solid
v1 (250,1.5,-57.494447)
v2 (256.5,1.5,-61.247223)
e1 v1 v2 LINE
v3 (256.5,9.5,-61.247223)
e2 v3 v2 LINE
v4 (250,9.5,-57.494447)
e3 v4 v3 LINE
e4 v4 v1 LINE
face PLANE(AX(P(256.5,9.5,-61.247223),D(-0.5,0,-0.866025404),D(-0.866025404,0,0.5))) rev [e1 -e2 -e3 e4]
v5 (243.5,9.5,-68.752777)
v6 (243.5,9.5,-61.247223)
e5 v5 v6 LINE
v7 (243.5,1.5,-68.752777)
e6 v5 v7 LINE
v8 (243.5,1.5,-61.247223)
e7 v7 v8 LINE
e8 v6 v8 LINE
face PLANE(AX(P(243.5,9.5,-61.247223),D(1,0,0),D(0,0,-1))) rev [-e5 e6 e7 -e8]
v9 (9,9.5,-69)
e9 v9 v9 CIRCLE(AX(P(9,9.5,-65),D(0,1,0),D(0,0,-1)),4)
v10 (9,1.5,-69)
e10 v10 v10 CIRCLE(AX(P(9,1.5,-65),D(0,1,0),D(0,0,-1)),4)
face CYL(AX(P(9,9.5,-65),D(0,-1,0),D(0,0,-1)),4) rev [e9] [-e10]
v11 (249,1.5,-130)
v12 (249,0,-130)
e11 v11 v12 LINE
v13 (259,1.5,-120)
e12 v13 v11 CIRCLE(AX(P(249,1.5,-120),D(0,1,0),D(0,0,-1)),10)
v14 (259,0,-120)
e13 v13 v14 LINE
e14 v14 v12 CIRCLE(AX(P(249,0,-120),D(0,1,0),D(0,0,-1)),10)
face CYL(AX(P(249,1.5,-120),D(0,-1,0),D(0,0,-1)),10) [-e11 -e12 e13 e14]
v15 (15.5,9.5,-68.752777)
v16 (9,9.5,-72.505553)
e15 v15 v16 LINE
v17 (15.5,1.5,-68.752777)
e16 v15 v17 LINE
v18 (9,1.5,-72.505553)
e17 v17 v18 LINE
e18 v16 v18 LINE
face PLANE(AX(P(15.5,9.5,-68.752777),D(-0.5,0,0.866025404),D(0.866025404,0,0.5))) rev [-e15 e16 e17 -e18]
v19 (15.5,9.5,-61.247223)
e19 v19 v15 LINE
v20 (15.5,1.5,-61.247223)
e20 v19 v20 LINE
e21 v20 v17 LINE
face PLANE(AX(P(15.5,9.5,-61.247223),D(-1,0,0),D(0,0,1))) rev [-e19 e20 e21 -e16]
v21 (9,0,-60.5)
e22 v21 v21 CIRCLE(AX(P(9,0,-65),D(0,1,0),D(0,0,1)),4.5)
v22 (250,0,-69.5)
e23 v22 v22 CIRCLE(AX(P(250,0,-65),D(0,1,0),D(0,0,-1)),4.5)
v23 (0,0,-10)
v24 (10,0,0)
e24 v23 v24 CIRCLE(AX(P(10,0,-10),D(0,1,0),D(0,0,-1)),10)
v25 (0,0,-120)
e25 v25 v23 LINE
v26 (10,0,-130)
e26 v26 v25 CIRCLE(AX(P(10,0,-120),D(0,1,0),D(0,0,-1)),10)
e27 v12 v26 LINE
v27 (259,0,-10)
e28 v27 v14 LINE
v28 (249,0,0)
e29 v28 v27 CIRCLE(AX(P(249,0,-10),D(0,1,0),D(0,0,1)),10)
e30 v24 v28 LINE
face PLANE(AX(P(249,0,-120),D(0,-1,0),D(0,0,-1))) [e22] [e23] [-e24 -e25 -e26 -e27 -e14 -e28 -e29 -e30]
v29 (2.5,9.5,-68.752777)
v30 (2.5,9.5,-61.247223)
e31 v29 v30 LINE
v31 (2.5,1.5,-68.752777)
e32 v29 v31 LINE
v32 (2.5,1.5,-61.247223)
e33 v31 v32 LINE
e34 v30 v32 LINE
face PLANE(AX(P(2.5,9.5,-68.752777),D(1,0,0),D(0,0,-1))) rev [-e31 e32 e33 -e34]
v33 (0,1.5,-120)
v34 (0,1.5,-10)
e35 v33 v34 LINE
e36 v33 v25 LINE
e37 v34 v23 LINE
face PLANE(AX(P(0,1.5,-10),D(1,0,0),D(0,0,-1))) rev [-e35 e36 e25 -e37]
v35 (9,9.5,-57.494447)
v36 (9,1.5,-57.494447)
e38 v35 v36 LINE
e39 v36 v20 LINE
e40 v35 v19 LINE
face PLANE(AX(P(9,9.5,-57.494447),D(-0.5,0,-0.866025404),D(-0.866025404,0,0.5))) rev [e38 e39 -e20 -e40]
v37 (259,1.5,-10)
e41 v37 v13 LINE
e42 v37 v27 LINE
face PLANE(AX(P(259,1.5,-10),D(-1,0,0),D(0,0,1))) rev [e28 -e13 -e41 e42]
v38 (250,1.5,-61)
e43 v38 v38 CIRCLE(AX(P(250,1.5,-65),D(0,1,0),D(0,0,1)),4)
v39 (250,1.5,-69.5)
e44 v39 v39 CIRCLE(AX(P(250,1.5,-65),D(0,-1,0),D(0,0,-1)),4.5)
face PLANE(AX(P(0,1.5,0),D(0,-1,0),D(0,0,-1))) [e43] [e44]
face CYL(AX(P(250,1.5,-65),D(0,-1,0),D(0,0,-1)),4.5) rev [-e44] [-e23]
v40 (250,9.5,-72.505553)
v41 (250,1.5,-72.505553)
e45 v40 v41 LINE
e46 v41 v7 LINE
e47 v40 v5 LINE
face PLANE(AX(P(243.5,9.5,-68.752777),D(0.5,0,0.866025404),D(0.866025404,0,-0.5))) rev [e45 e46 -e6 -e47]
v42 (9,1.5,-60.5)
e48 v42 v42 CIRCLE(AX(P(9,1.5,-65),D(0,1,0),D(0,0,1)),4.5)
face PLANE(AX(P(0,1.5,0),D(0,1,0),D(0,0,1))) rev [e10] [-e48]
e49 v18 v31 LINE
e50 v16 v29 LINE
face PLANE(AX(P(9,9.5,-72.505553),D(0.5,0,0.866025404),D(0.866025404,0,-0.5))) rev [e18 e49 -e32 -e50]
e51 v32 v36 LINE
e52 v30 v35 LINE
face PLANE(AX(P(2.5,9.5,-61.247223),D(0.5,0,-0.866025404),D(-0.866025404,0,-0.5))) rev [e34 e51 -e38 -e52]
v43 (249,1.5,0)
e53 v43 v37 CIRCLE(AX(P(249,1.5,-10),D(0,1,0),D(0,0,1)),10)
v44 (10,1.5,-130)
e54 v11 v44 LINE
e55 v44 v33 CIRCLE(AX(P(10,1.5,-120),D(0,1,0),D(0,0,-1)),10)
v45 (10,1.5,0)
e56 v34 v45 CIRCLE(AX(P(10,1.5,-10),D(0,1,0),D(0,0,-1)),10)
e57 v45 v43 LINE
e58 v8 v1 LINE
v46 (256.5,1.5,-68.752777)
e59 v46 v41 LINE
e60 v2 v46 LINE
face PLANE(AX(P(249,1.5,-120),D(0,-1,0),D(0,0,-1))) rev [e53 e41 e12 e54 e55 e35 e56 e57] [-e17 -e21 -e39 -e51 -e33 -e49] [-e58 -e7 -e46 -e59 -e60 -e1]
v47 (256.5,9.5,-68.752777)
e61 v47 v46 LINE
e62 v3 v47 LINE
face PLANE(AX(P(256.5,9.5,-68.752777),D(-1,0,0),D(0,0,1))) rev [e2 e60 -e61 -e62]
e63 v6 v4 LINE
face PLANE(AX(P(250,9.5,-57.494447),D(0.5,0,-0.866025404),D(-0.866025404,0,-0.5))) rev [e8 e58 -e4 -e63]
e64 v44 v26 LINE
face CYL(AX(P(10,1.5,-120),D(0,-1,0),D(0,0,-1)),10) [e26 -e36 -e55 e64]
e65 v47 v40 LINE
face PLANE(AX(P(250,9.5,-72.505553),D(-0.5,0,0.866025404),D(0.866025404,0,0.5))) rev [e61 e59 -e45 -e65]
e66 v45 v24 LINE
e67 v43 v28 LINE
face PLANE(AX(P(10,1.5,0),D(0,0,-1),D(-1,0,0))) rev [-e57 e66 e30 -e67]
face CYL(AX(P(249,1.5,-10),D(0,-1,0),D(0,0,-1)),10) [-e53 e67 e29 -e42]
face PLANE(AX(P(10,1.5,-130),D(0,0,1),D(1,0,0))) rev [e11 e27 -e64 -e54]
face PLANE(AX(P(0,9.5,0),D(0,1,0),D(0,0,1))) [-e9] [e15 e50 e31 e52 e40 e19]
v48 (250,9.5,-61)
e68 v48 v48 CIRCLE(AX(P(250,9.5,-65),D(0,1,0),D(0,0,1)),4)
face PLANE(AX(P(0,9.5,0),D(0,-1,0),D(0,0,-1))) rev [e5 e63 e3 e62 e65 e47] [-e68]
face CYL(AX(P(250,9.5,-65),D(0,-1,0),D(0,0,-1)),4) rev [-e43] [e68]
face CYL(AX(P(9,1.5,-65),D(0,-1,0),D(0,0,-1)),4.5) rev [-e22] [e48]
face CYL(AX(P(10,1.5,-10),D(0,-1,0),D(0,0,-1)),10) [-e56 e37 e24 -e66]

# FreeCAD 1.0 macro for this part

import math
import FreeCAD as App
import Part
import Sketcher
from FreeCAD import Vector
Q = App.Units.Quantity

doc = App.newDocument("Part")
params = doc.addObject("Spreadsheet::Sheet", "Params")
for row, (alias, value) in enumerate([
    ("sketch1_diameter", "9 mm"),
    ("sketch1_radius", "10 mm"),
    ("sketch1_width", "239 mm"),
    ("sketch1_height", "110 mm"),
    ("pad1_length", "1.5 mm"),
    ("sketch2_diameter", "8 mm"),
    ("pad2_length", "8 mm"),
], start=1):
    params.set(f"A{row}", alias)
    params.set(f"B{row}", "=" + value)
    params.setAlias(f"B{row}", alias)

body = doc.addObject("PartDesign::Body", "Body")

sketch1 = body.newObject("Sketcher::SketchObject", "Sketch")
sketch1.AttachmentSupport = (doc.getObject("XZ_Plane"), [""])
sketch1.MapMode = "FlatFace"
sketch1.addGeometry([
    Part.LineSegment(Vector(10, 0, 0), Vector(249, 0, 0)),
    Part.ArcOfCircle(Part.Circle(Vector(249, -10, 0), Vector(0, 0, 1), 10), math.radians(0), math.radians(90)),
    Part.LineSegment(Vector(259, -10, 0), Vector(259, -120, 0)),
    Part.ArcOfCircle(Part.Circle(Vector(249, -120, 0), Vector(0, 0, 1), 10), math.radians(-90), math.radians(0)),
    Part.LineSegment(Vector(249, -130, 0), Vector(10, -130, 0)),
    Part.ArcOfCircle(Part.Circle(Vector(10, -120, 0), Vector(0, 0, 1), 10), math.radians(180), math.radians(270)),
    Part.LineSegment(Vector(0, -120, 0), Vector(0, -10, 0)),
    Part.ArcOfCircle(Part.Circle(Vector(10, -10, 0), Vector(0, 0, 1), 10), math.radians(90), math.radians(180)),
    Part.Circle(Vector(9, -65, 0), Vector(0, 0, 1), 4.5),
    Part.Circle(Vector(250, -65, 0), Vector(0, 0, 1), 4.5),
], False)
sketch1.addConstraint([
    Sketcher.Constraint("Tangent", 0, 2, 1, 2),
    Sketcher.Constraint("Tangent", 1, 1, 2, 1),
    Sketcher.Constraint("Tangent", 2, 2, 3, 2),
    Sketcher.Constraint("Tangent", 3, 1, 4, 1),
    Sketcher.Constraint("Tangent", 4, 2, 5, 2),
    Sketcher.Constraint("Tangent", 5, 1, 6, 1),
    Sketcher.Constraint("Tangent", 6, 2, 7, 2),
    Sketcher.Constraint("Tangent", 7, 1, 0, 1),
    Sketcher.Constraint("Horizontal", 0),
    Sketcher.Constraint("Vertical", 2),
    Sketcher.Constraint("Horizontal", 4),
    Sketcher.Constraint("Vertical", 6),
    Sketcher.Constraint("Equal", 1, 3),
    Sketcher.Constraint("Equal", 3, 5),
    Sketcher.Constraint("Equal", 5, 7),
    Sketcher.Constraint("Equal", 8, 9),
    Sketcher.Constraint("PointOnObject", 0, 2, -1),
    Sketcher.Constraint("PointOnObject", 5, 1, -2),
    Sketcher.Constraint("Horizontal", 8, 3, 9, 3),
    Sketcher.Constraint("Diameter", 8, 9.0),
    Sketcher.Constraint("Radius", 1, 10.0),
    Sketcher.Constraint("DistanceX", 0, 1, 0, 2, 239.0),
    Sketcher.Constraint("DistanceY", 2, 2, 2, 1, 110.0),
    Sketcher.Constraint("DistanceX", -1, 1, 8, 3, 9.0),
    Sketcher.Constraint("DistanceY", 8, 3, -1, 1, 65.0),
    Sketcher.Constraint("DistanceX", -1, 1, 9, 3, 250.0),
])
sketch1.setExpression("Constraints[19]", "Params.sketch1_diameter")
sketch1.setExpression("Constraints[20]", "Params.sketch1_radius")
sketch1.setExpression("Constraints[21]", "Params.sketch1_width")
sketch1.setExpression("Constraints[22]", "Params.sketch1_height")
pad1 = body.newObject("PartDesign::Pad", "Pad")
pad1.Profile = sketch1
pad1.setExpression("Length", "Params.pad1_length")
pad1.Reversed = True

sketch2 = body.newObject("Sketcher::SketchObject", "Sketch001")
sketch2.AttachmentSupport = (doc.getObject("XZ_Plane"), [""])
sketch2.MapMode = "FlatFace"
sketch2.AttachmentOffset = App.Placement(Vector(0, 0, -1.5), App.Rotation())
sketch2.addGeometry([
    Part.LineSegment(Vector(9, -57.5, 0), Vector(15.5, -61.2, 0)),
    Part.LineSegment(Vector(15.5, -61.2, 0), Vector(15.5, -68.8, 0)),
    Part.LineSegment(Vector(15.5, -68.8, 0), Vector(9, -72.5, 0)),
    Part.LineSegment(Vector(9, -72.5, 0), Vector(2.5, -68.8, 0)),
    Part.LineSegment(Vector(2.5, -68.8, 0), Vector(2.5, -61.2, 0)),
    Part.LineSegment(Vector(2.5, -61.2, 0), Vector(9, -57.5, 0)),
    Part.Circle(Vector(9, -65, 0), Vector(0, 0, 1), 4),
    Part.LineSegment(Vector(250, -57.5, 0), Vector(256.5, -61.2, 0)),
    Part.LineSegment(Vector(256.5, -61.2, 0), Vector(256.5, -68.8, 0)),
    Part.LineSegment(Vector(256.5, -68.8, 0), Vector(250, -72.5, 0)),
    Part.LineSegment(Vector(250, -72.5, 0), Vector(243.5, -68.8, 0)),
    Part.LineSegment(Vector(243.5, -68.8, 0), Vector(243.5, -61.2, 0)),
    Part.LineSegment(Vector(243.5, -61.2, 0), Vector(250, -57.5, 0)),
    Part.Circle(Vector(250, -65, 0), Vector(0, 0, 1), 4),
], False)
sketch2.addConstraint([
    Sketcher.Constraint("Coincident", 0, 2, 1, 1),
    Sketcher.Constraint("Coincident", 1, 2, 2, 1),
    Sketcher.Constraint("Coincident", 2, 2, 3, 1),
    Sketcher.Constraint("Coincident", 3, 2, 4, 1),
    Sketcher.Constraint("Coincident", 4, 2, 5, 1),
    Sketcher.Constraint("Coincident", 5, 2, 0, 1),
    Sketcher.Constraint("Coincident", 7, 2, 8, 1),
    Sketcher.Constraint("Coincident", 8, 2, 9, 1),
    Sketcher.Constraint("Coincident", 9, 2, 10, 1),
    Sketcher.Constraint("Coincident", 10, 2, 11, 1),
    Sketcher.Constraint("Coincident", 11, 2, 12, 1),
    Sketcher.Constraint("Coincident", 12, 2, 7, 1),
    Sketcher.Constraint("Vertical", 1),
    Sketcher.Constraint("Vertical", 4),
    Sketcher.Constraint("Vertical", 8),
    Sketcher.Constraint("Vertical", 11),
    Sketcher.Constraint("Equal", 6, 13),
    Sketcher.Constraint("Parallel", 0, 3),
    Sketcher.Constraint("Parallel", 2, 5),
    Sketcher.Constraint("Parallel", 3, 7),
    Sketcher.Constraint("Parallel", 5, 9),
    Sketcher.Constraint("Parallel", 7, 10),
    Sketcher.Constraint("Parallel", 9, 12),
    Sketcher.Constraint("Horizontal", 6, 3, 13, 3),
    Sketcher.Constraint("Horizontal", 1, 2, 3, 2),
    Sketcher.Constraint("Horizontal", 0, 2, 4, 2),
    Sketcher.Constraint("Horizontal", 4, 2, 7, 2),
    Sketcher.Constraint("Horizontal", 3, 2, 8, 2),
    Sketcher.Constraint("Horizontal", 2, 2, 9, 2),
    Sketcher.Constraint("Horizontal", 8, 2, 10, 2),
    Sketcher.Constraint("Horizontal", 7, 2, 11, 2),
    Sketcher.Constraint("Vertical", 6, 3, 2, 2),
    Sketcher.Constraint("Vertical", 2, 2, 5, 2),
    Sketcher.Constraint("Vertical", 13, 3, 9, 2),
    Sketcher.Constraint("Diameter", 6, 8.0),
    Sketcher.Constraint("Angle", 0, Q("-30 deg")),
    Sketcher.Constraint("DistanceX", -1, 1, 6, 3, 9.0),
    Sketcher.Constraint("DistanceY", 6, 3, -1, 1, 65.0),
    Sketcher.Constraint("DistanceX", -1, 1, 13, 3, 250.0),
    Sketcher.Constraint("DistanceX", 3, 2, 1, 2, 13.0),
    Sketcher.Constraint("DistanceY", 1, 2, 1, 1, 7.505553),
    Sketcher.Constraint("DistanceY", 0, 2, -1, 1, 61.247223),
])
sketch2.setExpression("Constraints[34]", "Params.sketch2_diameter")
pad2 = body.newObject("PartDesign::Pad", "Pad001")
pad2.Profile = sketch2
pad2.setExpression("Length", "Params.pad2_length")
pad2.Reversed = True

doc.recompute()
